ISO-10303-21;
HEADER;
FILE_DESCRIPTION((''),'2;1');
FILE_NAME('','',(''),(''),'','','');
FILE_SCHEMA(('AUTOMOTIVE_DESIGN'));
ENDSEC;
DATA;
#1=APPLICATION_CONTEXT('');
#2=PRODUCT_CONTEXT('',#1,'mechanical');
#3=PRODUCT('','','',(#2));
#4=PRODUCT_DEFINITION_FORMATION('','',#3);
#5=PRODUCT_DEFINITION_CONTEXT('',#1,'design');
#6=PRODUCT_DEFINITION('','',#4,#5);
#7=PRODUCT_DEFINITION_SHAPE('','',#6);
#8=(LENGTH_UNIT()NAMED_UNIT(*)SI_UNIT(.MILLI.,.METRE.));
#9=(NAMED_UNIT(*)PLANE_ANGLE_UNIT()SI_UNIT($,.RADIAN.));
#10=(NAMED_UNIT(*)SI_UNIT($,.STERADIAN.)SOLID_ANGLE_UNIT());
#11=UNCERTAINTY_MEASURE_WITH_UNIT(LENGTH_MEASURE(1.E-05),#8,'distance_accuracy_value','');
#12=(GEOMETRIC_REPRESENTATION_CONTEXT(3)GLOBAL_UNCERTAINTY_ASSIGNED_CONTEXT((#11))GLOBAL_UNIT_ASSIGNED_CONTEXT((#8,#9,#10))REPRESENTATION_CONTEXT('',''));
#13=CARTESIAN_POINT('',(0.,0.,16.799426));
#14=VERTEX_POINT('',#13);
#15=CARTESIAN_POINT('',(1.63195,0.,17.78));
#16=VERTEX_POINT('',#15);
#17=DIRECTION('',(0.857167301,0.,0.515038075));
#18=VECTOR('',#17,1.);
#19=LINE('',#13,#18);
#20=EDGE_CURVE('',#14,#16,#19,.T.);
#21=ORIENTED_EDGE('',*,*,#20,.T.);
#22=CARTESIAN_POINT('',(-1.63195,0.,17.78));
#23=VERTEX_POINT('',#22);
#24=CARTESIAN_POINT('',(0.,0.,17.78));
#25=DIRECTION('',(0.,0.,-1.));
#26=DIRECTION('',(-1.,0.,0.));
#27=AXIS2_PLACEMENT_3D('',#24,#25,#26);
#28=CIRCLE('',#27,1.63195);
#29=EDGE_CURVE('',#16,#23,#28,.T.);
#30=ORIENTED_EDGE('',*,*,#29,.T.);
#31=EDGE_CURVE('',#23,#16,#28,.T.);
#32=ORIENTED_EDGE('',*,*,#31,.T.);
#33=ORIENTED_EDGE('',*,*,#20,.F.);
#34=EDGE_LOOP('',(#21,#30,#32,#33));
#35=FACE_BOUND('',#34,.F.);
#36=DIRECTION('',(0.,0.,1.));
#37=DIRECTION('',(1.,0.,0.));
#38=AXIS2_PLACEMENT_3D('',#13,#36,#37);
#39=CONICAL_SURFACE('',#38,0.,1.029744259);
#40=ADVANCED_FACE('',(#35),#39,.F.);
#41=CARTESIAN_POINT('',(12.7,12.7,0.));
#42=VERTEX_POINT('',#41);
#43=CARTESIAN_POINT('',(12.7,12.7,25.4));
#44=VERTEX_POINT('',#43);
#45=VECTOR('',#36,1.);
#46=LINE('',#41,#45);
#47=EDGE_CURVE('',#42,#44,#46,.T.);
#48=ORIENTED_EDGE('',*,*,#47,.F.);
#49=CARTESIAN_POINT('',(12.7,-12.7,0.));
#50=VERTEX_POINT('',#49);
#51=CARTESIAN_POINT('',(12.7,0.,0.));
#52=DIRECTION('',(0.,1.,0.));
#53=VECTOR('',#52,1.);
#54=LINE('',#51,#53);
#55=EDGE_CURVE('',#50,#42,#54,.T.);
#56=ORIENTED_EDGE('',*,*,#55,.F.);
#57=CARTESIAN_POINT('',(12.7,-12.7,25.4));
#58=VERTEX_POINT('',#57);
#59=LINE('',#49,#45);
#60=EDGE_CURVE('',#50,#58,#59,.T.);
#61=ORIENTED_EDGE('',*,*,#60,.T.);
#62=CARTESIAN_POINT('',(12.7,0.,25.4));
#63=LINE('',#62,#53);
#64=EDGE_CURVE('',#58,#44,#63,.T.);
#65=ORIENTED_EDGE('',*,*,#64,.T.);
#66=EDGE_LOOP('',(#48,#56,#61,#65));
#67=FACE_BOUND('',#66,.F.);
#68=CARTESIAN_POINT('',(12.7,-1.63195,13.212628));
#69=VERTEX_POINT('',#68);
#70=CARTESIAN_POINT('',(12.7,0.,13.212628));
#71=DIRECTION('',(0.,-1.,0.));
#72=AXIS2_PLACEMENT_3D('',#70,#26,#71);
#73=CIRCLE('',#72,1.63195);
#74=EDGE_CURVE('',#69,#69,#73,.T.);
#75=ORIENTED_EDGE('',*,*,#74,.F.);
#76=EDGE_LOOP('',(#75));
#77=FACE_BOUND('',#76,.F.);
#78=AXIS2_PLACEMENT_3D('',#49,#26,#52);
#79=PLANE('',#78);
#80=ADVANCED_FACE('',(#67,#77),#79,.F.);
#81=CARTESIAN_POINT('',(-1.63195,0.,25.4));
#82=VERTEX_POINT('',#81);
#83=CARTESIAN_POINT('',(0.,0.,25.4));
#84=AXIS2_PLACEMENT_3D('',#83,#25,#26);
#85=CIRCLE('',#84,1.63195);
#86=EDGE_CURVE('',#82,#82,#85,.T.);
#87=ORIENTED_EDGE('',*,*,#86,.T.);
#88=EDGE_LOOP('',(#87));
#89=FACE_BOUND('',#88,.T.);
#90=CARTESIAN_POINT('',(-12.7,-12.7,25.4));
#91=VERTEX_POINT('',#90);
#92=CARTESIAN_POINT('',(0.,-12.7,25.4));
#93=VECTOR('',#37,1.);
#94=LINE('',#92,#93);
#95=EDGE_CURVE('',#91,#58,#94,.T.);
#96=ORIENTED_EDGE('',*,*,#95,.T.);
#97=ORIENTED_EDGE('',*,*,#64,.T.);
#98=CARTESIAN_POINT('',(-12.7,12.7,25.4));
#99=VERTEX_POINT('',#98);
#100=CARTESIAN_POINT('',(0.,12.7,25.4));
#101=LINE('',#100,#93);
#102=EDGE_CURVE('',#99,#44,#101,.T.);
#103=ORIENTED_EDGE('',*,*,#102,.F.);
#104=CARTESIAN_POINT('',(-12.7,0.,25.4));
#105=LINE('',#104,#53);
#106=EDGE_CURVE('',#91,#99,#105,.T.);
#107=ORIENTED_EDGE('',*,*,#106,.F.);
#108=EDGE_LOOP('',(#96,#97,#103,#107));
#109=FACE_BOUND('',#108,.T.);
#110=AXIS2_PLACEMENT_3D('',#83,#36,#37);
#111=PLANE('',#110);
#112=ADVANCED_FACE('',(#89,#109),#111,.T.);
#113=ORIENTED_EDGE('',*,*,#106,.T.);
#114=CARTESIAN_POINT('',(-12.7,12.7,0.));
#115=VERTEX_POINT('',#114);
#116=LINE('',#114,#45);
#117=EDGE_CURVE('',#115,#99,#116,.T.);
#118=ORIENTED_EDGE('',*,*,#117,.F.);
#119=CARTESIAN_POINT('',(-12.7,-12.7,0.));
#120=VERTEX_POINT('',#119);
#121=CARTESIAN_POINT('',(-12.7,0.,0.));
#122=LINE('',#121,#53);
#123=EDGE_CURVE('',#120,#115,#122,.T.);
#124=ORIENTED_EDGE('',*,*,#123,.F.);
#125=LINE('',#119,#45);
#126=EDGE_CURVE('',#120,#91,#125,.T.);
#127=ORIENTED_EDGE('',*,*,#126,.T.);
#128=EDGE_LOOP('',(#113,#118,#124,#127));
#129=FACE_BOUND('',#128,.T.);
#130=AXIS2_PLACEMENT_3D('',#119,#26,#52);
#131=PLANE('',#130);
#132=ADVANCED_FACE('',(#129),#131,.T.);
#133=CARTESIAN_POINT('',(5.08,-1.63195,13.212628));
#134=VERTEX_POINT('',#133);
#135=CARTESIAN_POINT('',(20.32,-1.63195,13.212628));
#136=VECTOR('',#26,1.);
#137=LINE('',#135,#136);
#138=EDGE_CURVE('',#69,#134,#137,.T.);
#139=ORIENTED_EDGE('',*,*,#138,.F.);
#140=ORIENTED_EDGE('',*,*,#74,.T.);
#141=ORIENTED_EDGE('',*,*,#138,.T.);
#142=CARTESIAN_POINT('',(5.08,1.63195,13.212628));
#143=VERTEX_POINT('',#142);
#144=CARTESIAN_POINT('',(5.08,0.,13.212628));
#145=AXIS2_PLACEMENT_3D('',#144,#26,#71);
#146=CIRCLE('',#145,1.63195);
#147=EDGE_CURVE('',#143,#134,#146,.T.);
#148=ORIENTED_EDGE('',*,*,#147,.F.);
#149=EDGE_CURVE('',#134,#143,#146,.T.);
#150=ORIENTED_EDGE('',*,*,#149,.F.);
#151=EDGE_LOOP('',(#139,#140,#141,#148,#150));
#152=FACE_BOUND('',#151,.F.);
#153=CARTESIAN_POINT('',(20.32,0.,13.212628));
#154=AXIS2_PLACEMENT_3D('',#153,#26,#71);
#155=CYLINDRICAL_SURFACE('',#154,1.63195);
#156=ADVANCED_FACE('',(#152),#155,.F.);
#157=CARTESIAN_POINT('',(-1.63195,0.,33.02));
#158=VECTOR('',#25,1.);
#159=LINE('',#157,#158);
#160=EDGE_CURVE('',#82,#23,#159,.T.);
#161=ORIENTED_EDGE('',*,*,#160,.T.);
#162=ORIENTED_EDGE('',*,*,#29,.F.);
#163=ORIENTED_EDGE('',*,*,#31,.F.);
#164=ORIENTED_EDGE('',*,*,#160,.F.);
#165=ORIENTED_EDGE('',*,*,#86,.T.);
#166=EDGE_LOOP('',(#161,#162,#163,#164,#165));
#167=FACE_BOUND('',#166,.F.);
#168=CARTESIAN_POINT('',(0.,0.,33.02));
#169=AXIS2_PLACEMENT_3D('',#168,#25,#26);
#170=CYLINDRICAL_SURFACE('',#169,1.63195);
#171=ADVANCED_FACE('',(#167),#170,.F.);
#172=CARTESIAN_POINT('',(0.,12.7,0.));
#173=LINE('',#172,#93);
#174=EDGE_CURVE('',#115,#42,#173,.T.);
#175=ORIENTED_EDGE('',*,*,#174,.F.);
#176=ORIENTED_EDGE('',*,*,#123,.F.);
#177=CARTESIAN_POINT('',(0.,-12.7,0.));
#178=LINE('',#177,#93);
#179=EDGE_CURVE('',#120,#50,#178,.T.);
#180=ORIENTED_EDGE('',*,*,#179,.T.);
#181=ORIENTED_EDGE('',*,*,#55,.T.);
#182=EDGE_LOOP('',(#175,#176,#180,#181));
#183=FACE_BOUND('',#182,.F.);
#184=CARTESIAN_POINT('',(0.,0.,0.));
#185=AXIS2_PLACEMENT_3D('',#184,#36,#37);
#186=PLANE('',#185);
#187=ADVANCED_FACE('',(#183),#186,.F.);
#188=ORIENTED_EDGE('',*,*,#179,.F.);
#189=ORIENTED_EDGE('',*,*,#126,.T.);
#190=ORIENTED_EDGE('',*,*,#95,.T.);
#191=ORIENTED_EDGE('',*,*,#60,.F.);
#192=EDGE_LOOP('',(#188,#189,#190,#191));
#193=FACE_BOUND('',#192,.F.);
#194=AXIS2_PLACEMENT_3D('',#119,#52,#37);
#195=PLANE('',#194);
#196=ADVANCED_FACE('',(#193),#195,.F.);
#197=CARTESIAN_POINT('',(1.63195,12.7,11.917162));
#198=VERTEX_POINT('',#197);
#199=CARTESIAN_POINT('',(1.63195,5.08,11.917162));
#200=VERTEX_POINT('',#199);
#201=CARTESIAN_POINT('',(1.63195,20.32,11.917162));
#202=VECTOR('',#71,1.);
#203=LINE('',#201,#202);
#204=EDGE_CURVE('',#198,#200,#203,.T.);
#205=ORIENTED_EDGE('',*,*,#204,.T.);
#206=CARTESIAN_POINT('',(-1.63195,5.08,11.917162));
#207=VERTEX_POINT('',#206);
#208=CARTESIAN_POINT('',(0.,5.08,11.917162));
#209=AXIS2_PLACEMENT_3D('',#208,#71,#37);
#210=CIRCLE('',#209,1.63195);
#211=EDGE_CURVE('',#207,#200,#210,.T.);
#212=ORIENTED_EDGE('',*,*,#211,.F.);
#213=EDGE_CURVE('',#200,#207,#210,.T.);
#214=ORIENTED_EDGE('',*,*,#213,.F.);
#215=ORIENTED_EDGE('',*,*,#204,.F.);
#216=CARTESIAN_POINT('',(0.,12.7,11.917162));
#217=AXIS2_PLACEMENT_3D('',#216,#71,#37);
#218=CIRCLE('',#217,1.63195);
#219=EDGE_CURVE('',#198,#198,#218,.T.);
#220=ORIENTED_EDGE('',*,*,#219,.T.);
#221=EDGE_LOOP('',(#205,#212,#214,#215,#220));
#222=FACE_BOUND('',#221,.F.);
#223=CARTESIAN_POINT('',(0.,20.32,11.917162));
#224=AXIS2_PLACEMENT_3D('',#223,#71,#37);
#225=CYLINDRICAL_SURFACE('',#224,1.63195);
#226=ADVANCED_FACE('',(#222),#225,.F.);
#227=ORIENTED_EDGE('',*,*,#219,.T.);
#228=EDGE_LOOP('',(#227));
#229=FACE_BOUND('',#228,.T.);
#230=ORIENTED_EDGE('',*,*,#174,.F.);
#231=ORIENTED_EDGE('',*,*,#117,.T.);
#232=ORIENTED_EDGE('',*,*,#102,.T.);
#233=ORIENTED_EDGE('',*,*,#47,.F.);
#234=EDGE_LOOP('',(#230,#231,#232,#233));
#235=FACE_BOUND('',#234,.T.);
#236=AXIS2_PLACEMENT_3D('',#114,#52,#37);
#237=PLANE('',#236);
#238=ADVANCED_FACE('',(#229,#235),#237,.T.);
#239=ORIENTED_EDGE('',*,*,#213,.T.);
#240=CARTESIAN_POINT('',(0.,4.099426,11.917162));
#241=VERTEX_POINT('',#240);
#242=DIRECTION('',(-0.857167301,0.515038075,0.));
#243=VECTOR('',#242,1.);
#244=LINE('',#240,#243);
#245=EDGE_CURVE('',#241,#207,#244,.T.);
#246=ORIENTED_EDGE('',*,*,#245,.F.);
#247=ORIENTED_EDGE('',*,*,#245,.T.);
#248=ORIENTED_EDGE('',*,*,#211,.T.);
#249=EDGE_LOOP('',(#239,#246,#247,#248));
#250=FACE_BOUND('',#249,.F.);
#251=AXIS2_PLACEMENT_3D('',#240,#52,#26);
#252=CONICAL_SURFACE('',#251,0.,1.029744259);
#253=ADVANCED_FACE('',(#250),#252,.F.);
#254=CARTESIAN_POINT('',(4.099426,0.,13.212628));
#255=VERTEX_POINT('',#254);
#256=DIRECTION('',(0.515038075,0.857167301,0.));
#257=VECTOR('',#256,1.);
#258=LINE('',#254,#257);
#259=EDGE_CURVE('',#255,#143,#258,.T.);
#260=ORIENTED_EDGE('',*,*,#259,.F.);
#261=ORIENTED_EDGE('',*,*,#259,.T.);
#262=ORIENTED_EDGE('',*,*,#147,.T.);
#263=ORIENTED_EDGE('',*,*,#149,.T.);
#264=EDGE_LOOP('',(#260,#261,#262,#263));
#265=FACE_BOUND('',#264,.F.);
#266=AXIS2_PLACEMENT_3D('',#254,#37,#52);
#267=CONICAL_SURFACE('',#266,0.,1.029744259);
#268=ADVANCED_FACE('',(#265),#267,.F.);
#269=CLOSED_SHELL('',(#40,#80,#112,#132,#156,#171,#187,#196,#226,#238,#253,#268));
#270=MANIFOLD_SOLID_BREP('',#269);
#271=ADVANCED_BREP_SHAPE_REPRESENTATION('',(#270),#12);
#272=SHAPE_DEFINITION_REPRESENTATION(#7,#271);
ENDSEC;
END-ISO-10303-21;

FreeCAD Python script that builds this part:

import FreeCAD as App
import Part
import Sketcher

V = App.Vector
Q = App.Units.Quantity


def add_polygon(sketch, points):
    """Adds a closed chain of lines whose ends are joined by coincident constraints."""
    first, n = sketch.GeometryCount, len(points)
    for a, b in zip(points, points[1:] + points[:1]):
        sketch.addGeometry(Part.LineSegment(App.Vector(*a, 0), App.Vector(*b, 0)), False)
    for i in range(n):
        sketch.addConstraint(Sketcher.Constraint("Coincident", first + i, 2, first + (i + 1) % n, 1))

doc = App.newDocument("Part")
params = doc.addObject("Spreadsheet::Sheet", "Params")
for row, (alias, value) in enumerate([
    ("sketch1_width", "1 in"),
    ("pad1_length", "1 in"),
    ("hole_diameter", "0.1285 in"),
    ("hole_depth", "0.3 in"),
    ("hole2_diameter", "0.1285 in"),
    ("hole2_depth", "0.3 in"),
    ("hole3_diameter", "0.1285 in"),
    ("hole3_depth", "0.3 in"),
], start=1):
    params.set(f"A{row}", alias)
    params.set(f"B{row}", "=" + value)
    params.setAlias(f"B{row}", alias)

body = doc.addObject("PartDesign::Body", "Body")

# Sketch on XY plane
sketch1 = doc.addObject("Sketcher::SketchObject", "Sketch")
body.addObject(sketch1)
sketch1.AttachmentSupport = (doc.XY_Plane, [""])
sketch1.MapMode = "FlatFace"
add_polygon(sketch1, [(-13, 13), (-13, -13), (13, -13), (13, 13)])  # lines 0-3
sketch1.addConstraint([
    Sketcher.Constraint("Vertical", 0),
    Sketcher.Constraint("Horizontal", 1),
    Sketcher.Constraint("Vertical", 2),
    Sketcher.Constraint("Horizontal", 3),
    Sketcher.Constraint("Symmetric", 0, 2, 2, 2, -1, 1),
    Sketcher.Constraint("Equal", 3, 0),
    Sketcher.Constraint("DistanceX", 1, 1, 1, 2, Q("1 in")),
])
sketch1.setExpression("Constraints[10]", "Params.sketch1_width")
pad1 = doc.addObject("PartDesign::Pad", "Pad")
body.addObject(pad1)
pad1.Profile = sketch1
pad1.setExpression("Length", "Params.pad1_length")

# Sketch on XY plane
sketch2 = doc.addObject("Sketcher::SketchObject", "Sketch001")
body.addObject(sketch2)
sketch2.AttachmentSupport = (doc.XY_Plane, [""])
sketch2.MapMode = "FlatFace"
sketch2.AttachmentOffset = App.Placement(V(0, 0, 1 * 25.4), App.Rotation())
sketch2.addGeometry(Part.Circle(V(0, 0, 0), V(0, 0, 1), 1.6), False)
sketch2.addConstraint([
    Sketcher.Constraint("Coincident", 0, 3, -1, 1),
    Sketcher.Constraint("Diameter", 0, Q("0.1285 in")),
])
doc.recompute()
hole = doc.addObject("PartDesign::Hole", "Hole")
body.addObject(hole)
hole.Profile = sketch2
hole.ThreadType = "None"
hole.setExpression("Diameter", "Params.hole_diameter")
hole.DepthType = "Dimension"
hole.setExpression("Depth", "Params.hole_depth")
hole.DrillPoint = "Angled"
hole.DrillPointAngle = 118

# Sketch on YZ plane
sketch3 = doc.addObject("Sketcher::SketchObject", "Sketch002")
body.addObject(sketch3)
sketch3.AttachmentSupport = (doc.YZ_Plane, [""])
sketch3.MapMode = "FlatFace"
sketch3.AttachmentOffset = App.Placement(V(0, 0, 0.5 * 25.4), App.Rotation())
sketch3.addGeometry(Part.Circle(V(0, 13.2, 0), V(0, 0, 1), 1.6), False)
sketch3.addConstraint([
    Sketcher.Constraint("PointOnObject", 0, 3, -2),
    Sketcher.Constraint("Diameter", 0, Q("0.1285 in")),
    Sketcher.Constraint("DistanceY", -1, 1, 0, 3, 13.212628),
])
doc.recompute()
hole2 = doc.addObject("PartDesign::Hole", "Hole001")
body.addObject(hole2)
hole2.Profile = sketch3
hole2.ThreadType = "None"
hole2.setExpression("Diameter", "Params.hole2_diameter")
hole2.DepthType = "Dimension"
hole2.setExpression("Depth", "Params.hole2_depth")
hole2.DrillPoint = "Angled"
hole2.DrillPointAngle = 118

# Sketch on XZ plane
sketch4 = doc.addObject("Sketcher::SketchObject", "Sketch003")
body.addObject(sketch4)
sketch4.AttachmentSupport = (doc.XZ_Plane, [""])
sketch4.MapMode = "FlatFace"
sketch4.AttachmentOffset = App.Placement(V(0, 0, -0.5 * 25.4), App.Rotation())
sketch4.addGeometry(Part.Circle(V(0, 11.9, 0), V(0, 0, 1), 1.6), False)
sketch4.addConstraint([
    Sketcher.Constraint("PointOnObject", 0, 3, -2),
    Sketcher.Constraint("Diameter", 0, Q("0.1285 in")),
    Sketcher.Constraint("DistanceY", -1, 1, 0, 3, 11.917162),
])
doc.recompute()
hole3 = doc.addObject("PartDesign::Hole", "Hole002")
body.addObject(hole3)
hole3.Profile = sketch4
hole3.ThreadType = "None"
hole3.setExpression("Diameter", "Params.hole3_diameter")
hole3.DepthType = "Dimension"
hole3.setExpression("Depth", "Params.hole3_depth")
hole3.DrillPoint = "Angled"
hole3.DrillPointAngle = 118
hole3.Reversed = True

doc.recompute()
